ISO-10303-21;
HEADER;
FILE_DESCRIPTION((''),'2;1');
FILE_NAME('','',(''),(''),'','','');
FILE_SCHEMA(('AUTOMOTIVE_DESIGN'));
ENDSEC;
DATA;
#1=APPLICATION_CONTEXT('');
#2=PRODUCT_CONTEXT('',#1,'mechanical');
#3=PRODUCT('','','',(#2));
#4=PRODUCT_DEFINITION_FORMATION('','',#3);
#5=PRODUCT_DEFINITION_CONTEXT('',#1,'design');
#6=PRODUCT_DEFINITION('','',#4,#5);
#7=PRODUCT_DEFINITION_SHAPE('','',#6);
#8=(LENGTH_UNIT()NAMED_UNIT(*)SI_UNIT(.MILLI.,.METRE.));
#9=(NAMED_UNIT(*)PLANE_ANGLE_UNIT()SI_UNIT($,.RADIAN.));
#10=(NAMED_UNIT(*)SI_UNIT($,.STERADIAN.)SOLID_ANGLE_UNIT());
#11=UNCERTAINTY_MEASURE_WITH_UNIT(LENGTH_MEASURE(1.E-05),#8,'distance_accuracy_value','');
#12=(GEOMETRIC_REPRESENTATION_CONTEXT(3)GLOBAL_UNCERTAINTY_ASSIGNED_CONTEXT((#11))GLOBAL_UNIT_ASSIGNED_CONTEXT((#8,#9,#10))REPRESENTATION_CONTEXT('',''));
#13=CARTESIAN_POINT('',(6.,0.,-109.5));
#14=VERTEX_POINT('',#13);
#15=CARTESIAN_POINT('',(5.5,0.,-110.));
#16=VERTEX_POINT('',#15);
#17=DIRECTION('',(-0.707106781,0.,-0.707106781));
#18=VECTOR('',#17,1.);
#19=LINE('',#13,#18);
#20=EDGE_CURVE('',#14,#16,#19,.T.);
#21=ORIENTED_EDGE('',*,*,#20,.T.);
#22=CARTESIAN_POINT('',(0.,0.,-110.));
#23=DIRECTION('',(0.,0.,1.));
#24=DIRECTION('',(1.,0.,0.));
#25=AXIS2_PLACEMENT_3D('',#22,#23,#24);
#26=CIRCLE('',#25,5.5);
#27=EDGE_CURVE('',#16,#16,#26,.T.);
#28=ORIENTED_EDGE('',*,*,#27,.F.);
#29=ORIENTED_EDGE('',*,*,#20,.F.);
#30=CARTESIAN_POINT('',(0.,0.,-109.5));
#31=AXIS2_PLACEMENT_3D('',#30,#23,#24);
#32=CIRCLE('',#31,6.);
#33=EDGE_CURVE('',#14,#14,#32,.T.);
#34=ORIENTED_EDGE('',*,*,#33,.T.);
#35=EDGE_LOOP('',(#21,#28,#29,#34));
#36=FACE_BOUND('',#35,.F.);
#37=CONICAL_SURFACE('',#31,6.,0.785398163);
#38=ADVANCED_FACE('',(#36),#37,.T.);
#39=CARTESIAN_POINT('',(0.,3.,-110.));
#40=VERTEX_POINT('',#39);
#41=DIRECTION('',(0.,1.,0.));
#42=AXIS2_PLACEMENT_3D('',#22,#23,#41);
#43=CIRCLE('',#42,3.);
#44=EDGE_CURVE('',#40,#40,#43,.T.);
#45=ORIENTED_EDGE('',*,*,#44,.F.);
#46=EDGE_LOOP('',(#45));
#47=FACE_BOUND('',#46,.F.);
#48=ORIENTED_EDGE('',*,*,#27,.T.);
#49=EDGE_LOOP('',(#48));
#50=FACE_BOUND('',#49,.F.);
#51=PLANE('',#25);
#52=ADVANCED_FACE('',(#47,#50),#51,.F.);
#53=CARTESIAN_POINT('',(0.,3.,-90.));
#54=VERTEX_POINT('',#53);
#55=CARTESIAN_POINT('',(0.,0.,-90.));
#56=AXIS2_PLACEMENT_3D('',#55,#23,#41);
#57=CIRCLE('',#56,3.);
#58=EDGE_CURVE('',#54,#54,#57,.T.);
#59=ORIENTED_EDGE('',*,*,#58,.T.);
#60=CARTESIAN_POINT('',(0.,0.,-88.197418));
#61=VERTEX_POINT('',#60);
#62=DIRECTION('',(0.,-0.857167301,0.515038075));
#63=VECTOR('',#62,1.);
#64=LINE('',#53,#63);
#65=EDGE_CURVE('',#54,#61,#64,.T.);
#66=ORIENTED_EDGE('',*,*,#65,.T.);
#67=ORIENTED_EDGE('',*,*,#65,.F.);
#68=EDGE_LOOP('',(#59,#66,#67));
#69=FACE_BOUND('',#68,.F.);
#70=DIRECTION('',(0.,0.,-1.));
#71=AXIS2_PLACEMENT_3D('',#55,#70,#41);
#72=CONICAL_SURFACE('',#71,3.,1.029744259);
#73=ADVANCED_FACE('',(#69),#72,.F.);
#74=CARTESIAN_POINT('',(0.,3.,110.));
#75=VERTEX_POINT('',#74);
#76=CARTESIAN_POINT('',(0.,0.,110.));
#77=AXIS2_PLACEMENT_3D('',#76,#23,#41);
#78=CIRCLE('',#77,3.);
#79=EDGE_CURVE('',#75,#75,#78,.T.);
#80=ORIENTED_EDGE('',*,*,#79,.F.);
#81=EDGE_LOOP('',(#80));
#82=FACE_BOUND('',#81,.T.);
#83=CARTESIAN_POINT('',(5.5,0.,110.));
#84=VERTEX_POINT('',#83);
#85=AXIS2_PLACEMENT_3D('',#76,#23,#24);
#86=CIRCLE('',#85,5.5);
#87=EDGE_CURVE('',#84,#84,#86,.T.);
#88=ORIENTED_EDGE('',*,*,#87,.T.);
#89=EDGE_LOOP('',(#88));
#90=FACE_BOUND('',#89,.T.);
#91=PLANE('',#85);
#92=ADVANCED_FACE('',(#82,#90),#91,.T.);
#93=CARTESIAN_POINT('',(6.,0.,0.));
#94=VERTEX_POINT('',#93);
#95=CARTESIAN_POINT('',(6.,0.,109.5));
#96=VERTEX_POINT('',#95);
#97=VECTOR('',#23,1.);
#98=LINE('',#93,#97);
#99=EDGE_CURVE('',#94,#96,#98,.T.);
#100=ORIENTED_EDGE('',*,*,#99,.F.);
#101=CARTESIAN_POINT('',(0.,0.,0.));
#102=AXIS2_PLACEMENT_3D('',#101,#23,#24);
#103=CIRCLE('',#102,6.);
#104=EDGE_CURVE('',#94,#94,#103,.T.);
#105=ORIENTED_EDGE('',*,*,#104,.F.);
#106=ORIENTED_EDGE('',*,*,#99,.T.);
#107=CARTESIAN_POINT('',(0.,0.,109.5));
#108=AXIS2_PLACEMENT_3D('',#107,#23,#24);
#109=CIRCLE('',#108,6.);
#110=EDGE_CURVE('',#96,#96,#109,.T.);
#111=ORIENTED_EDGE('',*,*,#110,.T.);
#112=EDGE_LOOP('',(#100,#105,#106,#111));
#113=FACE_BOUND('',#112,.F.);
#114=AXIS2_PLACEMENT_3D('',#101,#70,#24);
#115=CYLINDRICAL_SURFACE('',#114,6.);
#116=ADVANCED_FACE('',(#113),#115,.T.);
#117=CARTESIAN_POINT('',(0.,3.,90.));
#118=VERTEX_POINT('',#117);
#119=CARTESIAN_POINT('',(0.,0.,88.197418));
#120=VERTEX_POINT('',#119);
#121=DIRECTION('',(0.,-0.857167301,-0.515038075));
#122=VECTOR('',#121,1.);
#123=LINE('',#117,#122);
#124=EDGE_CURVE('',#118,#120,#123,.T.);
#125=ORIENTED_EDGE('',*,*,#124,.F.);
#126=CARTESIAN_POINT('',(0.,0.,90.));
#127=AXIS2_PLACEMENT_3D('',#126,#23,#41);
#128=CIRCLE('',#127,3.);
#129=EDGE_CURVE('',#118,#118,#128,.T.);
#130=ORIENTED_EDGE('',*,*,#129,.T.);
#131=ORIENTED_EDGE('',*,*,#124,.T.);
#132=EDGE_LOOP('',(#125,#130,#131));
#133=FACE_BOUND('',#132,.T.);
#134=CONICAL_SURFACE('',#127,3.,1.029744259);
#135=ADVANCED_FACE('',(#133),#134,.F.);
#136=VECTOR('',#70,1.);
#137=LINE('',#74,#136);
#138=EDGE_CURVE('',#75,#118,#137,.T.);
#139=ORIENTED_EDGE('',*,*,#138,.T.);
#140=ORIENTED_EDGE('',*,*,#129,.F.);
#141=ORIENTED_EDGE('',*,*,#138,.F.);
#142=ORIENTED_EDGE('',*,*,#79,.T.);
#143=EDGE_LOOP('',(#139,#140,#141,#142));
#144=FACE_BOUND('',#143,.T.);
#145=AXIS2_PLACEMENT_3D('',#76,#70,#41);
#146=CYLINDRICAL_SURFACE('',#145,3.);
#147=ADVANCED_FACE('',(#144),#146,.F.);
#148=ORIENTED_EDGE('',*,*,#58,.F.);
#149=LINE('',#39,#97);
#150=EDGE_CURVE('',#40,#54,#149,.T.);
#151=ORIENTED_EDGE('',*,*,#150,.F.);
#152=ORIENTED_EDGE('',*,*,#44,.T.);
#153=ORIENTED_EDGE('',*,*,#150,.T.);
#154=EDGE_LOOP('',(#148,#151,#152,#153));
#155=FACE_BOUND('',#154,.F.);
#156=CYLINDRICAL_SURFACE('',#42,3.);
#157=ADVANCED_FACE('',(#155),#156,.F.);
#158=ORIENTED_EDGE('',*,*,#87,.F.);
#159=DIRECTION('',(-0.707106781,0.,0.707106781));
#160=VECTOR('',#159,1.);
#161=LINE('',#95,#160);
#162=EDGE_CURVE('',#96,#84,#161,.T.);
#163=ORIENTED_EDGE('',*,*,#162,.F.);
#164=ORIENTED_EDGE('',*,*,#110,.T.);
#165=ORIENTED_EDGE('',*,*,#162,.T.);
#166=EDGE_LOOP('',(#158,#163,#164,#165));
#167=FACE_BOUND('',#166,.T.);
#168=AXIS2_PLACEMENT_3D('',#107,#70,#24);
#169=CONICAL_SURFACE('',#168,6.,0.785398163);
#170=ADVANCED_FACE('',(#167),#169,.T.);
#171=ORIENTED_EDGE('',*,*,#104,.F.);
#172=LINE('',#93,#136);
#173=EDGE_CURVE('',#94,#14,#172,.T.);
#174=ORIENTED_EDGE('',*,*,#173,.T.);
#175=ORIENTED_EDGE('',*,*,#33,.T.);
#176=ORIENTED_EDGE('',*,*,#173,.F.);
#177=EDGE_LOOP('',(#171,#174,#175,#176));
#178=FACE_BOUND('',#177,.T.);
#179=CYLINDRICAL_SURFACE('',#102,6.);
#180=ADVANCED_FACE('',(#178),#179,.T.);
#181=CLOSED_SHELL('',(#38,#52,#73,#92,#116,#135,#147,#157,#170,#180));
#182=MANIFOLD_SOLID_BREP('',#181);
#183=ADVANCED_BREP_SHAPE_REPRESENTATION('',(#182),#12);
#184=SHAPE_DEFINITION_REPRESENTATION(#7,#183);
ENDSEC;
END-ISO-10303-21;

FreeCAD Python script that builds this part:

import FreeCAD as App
import Part
import Sketcher

V = App.Vector


def edges_at(feature, points):
    """Names of the edges that pass closest to the given points."""
    edges = feature.Shape.Edges
    near = lambda p: min(range(len(edges)), key=lambda i: edges[i].distToShape(Part.Vertex(*p))[0])
    return sorted({f"Edge{near(p) + 1}" for p in points})

doc = App.newDocument("Part")
body = doc.addObject("PartDesign::Body", "Body")

# Sketch on XY plane
sketch1 = doc.addObject("Sketcher::SketchObject", "Sketch")
body.addObject(sketch1)
sketch1.AttachmentSupport = (doc.XY_Plane, [""])
sketch1.MapMode = "FlatFace"
sketch1.addGeometry(Part.Circle(V(0, 0, 0), V(0, 0, 1), 6), False)
sketch1.addConstraint(Sketcher.Constraint("Coincident", 0, 3, -1, 1))
sketch1.addConstraint(Sketcher.Constraint("Diameter", 0, 12.0))
pad1 = doc.addObject("PartDesign::Pad", "Pad")
body.addObject(pad1)
pad1.Profile = sketch1
pad1.Length = 220
pad1.Midplane = True

# Sketch on XY plane
sketch2 = doc.addObject("Sketcher::SketchObject", "Sketch001")
body.addObject(sketch2)
sketch2.AttachmentSupport = (doc.XY_Plane, [""])
sketch2.MapMode = "FlatFace"
sketch2.AttachmentOffset = App.Placement(V(0, 0, -110), App.Rotation())
sketch2.addGeometry(Part.Circle(V(0, 0, 0), V(0, 0, 1), 3), False)
sketch2.addConstraint(Sketcher.Constraint("Coincident", 0, 3, -1, 1))
sketch2.addConstraint(Sketcher.Constraint("Diameter", 0, 6.0))
doc.recompute()
hole = doc.addObject("PartDesign::Hole", "Hole")
body.addObject(hole)
hole.Profile = sketch2
hole.ThreadType = "None"
hole.Diameter = 6
hole.DepthType = "Dimension"
hole.Depth = 20
hole.DrillPoint = "Angled"
hole.DrillPointAngle = 118
hole.Reversed = True
doc.recompute()

mirrored = doc.addObject("PartDesign::Mirrored", "Mirrored")
body.addObject(mirrored)
mirrored.Originals = [hole]
mirrored.MirrorPlane = (doc.XY_Plane, [""])
body.Tip = mirrored
doc.recompute()

chamfer = doc.addObject("PartDesign::Chamfer", "Chamfer")
body.addObject(chamfer)
chamfer.Base = (mirrored, edges_at(mirrored, [(-6, 0, -110), (-6, 0, 110)]))
chamfer.Size = 0.5

doc.recompute()
